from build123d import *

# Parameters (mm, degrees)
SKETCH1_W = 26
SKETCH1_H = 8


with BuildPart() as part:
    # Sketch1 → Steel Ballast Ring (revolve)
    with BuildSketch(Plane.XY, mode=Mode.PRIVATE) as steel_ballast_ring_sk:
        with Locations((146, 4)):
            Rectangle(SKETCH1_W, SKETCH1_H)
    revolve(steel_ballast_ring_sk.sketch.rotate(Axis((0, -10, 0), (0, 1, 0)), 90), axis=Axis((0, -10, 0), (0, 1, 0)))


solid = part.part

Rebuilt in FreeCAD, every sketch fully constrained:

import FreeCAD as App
import Part
import Sketcher

V = App.Vector


def add_polygon(sketch, points):
    """Adds a closed chain of lines whose ends are joined by coincident constraints."""
    first, n = sketch.GeometryCount, len(points)
    for a, b in zip(points, points[1:] + points[:1]):
        sketch.addGeometry(Part.LineSegment(App.Vector(*a, 0), App.Vector(*b, 0)), False)
    for i in range(n):
        sketch.addConstraint(Sketcher.Constraint("Coincident", first + i, 2, first + (i + 1) % n, 1))

doc = App.newDocument("Part")
body = doc.addObject("PartDesign::Body", "Body")

sketch1 = doc.addObject("Sketcher::SketchObject", "Sketch")
body.addObject(sketch1)
sketch1.AttachmentSupport = (doc.XY_Plane, [""])
sketch1.MapMode = "FlatFace"
add_polygon(sketch1, [(133, 8), (133, 0), (159, 0), (159, 8)])
sketch1.addConstraint([
    Sketcher.Constraint("Vertical", 0),
    Sketcher.Constraint("Horizontal", 1),
    Sketcher.Constraint("Vertical", 2),
    Sketcher.Constraint("Horizontal", 3),
    Sketcher.Constraint("PointOnObject", 0, 2, -1),
    Sketcher.Constraint("DistanceX", 1, 1, 1, 2, 26.0),
    Sketcher.Constraint("DistanceY", 0, 2, 0, 1, 8.0),
    Sketcher.Constraint("DistanceX", -1, 1, 0, 2, 133.0),
])
revolution = doc.addObject("PartDesign::Revolution", "Revolution")
body.addObject(revolution)
revolution.Profile = sketch1
revolution.ReferenceAxis = (sketch1, ["V_Axis"])
revolution.Angle = 360

doc.recompute()
